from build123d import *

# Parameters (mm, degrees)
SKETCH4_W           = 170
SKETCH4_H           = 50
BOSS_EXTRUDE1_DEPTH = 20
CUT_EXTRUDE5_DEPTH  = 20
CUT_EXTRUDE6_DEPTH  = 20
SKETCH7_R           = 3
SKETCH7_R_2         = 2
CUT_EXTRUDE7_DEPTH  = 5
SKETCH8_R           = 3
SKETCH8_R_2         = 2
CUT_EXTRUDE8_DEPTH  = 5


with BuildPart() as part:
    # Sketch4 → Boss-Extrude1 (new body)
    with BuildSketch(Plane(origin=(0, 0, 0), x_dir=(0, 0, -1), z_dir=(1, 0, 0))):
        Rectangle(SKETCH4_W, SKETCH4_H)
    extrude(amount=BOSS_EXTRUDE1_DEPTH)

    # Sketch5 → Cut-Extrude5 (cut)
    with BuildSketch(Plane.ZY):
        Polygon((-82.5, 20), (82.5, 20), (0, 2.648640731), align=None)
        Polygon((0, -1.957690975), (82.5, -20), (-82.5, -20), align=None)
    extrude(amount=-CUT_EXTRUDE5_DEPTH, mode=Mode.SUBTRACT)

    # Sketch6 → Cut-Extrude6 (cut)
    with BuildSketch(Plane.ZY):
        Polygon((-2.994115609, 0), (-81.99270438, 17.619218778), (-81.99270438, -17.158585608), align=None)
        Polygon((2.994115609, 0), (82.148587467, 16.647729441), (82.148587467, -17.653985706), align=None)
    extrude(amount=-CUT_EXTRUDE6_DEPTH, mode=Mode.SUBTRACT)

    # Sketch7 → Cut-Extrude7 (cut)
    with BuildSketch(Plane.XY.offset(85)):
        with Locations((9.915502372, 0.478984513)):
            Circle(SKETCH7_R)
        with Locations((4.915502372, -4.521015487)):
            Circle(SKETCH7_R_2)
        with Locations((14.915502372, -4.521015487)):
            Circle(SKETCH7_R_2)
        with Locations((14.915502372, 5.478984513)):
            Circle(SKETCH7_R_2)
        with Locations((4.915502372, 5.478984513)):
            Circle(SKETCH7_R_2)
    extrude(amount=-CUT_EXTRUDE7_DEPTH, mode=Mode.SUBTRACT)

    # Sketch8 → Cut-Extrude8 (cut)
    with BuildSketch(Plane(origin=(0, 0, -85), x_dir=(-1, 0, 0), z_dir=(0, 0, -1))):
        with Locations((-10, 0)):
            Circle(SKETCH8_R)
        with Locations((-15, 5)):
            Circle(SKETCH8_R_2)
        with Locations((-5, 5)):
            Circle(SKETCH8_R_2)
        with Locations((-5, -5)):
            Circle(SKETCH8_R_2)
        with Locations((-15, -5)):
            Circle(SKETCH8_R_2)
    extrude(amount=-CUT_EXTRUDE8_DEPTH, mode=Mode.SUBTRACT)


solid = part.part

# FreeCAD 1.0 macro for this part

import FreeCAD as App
import Part
import Sketcher

V = App.Vector
Q = App.Units.Quantity


def add_polygon(sketch, points):
    """Adds a closed chain of lines whose ends are joined by coincident constraints."""
    first, n = sketch.GeometryCount, len(points)
    for a, b in zip(points, points[1:] + points[:1]):
        sketch.addGeometry(Part.LineSegment(App.Vector(*a, 0), App.Vector(*b, 0)), False)
    for i in range(n):
        sketch.addConstraint(Sketcher.Constraint("Coincident", first + i, 2, first + (i + 1) % n, 1))

doc = App.newDocument("Part")
body = doc.addObject("PartDesign::Body", "Body")

sketch1 = body.newObject("Sketcher::SketchObject", "Sketch")
sketch1.AttachmentSupport = (doc.getObject("YZ_Plane"), [""])
sketch1.MapMode = "FlatFace"
add_polygon(sketch1, [(25, 85), (-25, 85), (-25, -85), (25, -85)])
sketch1.addConstraint([
    Sketcher.Constraint("Horizontal", 0),
    Sketcher.Constraint("Vertical", 1),
    Sketcher.Constraint("Horizontal", 2),
    Sketcher.Constraint("Vertical", 3),
    Sketcher.Constraint("Symmetric", 0, 2, 2, 2, -1, 1),
    Sketcher.Constraint("DistanceX", 0, 2, 0, 1, Q("50 mm")),
    Sketcher.Constraint("DistanceY", 1, 2, 1, 1, Q("170 mm")),
])
pad1 = body.newObject("PartDesign::Pad", "Pad")
pad1.Profile = sketch1
pad1.Length = 20

sketch2 = body.newObject("Sketcher::SketchObject", "Sketch001")
sketch2.AttachmentSupport = (doc.getObject("YZ_Plane"), [""])
sketch2.MapMode = "FlatFace"
add_polygon(sketch2, [(20, 82), (20, -82), (3, 0)])
add_polygon(sketch2, [(-20, 82), (-2, 0), (-20, -82)])
sketch2.addConstraint([
    Sketcher.Constraint("Vertical", 0),
    Sketcher.Constraint("Vertical", 5),
    Sketcher.Constraint("Symmetric", 2, 2, 4, 2, -1, 1),
    Sketcher.Constraint("PointOnObject", 1, 2, -1),
    Sketcher.Constraint("PointOnObject", 3, 2, -1),
    Sketcher.Constraint("Horizontal", 0, 2, 4, 2),
    Sketcher.Constraint("Horizontal", 2, 2, 5, 2),
    Sketcher.Constraint("DistanceY", 0, 2, 0, 1, Q("165 mm")),
    Sketcher.Constraint("DistanceX", -1, 1, 0, 2, Q("20 mm")),
    Sketcher.Constraint("Distance", 1, Q("84.304921 mm")),
    Sketcher.Constraint("DistanceX", 3, 2, -1, 1, Q("1.957691 mm")),
])
pocket1 = body.newObject("PartDesign::Pocket", "Pocket")
pocket1.Profile = sketch2
pocket1.Length = 20
pocket1.Reversed = True

sketch3 = body.newObject("Sketcher::SketchObject", "Sketch002")
sketch3.AttachmentSupport = (doc.getObject("YZ_Plane"), [""])
sketch3.MapMode = "FlatFace"
add_polygon(sketch3, [(0, -3), (18, -82), (-17, -82)])
add_polygon(sketch3, [(17, 82), (0, 3), (-18, 82)])
sketch3.addConstraint([
    Sketcher.Constraint("Horizontal", 1),
    Sketcher.Constraint("Horizontal", 5),
    Sketcher.Constraint("Symmetric", 2, 2, 3, 2, -1, 1),
    Sketcher.Constraint("PointOnObject", 2, 2, -2),
    Sketcher.Constraint("Parallel", 0, 4),
    Sketcher.Constraint("Distance", 3, Q("80.8862 mm")),
    Sketcher.Constraint("DistanceX", 4, 2, 1, 2, Q("0.4954 mm")),
    Sketcher.Constraint("Distance", 0, Q("80.939569 mm")),
    Sketcher.Constraint("DistanceX", 1, 2, 1, 1, Q("34.777804 mm")),
    Sketcher.Constraint("DistanceX", 5, 1, 5, 2, Q("34.301715 mm")),
    Sketcher.Constraint("DistanceY", 2, 2, 3, 2, Q("5.988231 mm")),
])
pocket2 = body.newObject("PartDesign::Pocket", "Pocket001")
pocket2.Profile = sketch3
pocket2.Length = 20
pocket2.Reversed = True

sketch4 = body.newObject("Sketcher::SketchObject", "Sketch003")
sketch4.AttachmentSupport = (doc.getObject("XY_Plane"), [""])
sketch4.MapMode = "FlatFace"
sketch4.AttachmentOffset = App.Placement(V(0, 0, 85), App.Rotation())
sketch4.addGeometry([
    Part.Circle(V(9.9, 0.5, 0), V(0, 0, 1), 3),
    Part.Circle(V(4.9, -4.5, 0), V(0, 0, 1), 2),
    Part.Circle(V(14.9, -4.5, 0), V(0, 0, 1), 2),
    Part.Circle(V(14.9, 5.5, 0), V(0, 0, 1), 2),
    Part.Circle(V(4.9, 5.5, 0), V(0, 0, 1), 2),
], False)
sketch4.addConstraint([
    Sketcher.Constraint("Equal", 1, 2),
    Sketcher.Constraint("Equal", 2, 3),
    Sketcher.Constraint("Equal", 3, 4),
    Sketcher.Constraint("Horizontal", 1, 3, 2, 3),
    Sketcher.Constraint("Horizontal", 3, 3, 4, 3),
    Sketcher.Constraint("Vertical", 2, 3, 3, 3),
    Sketcher.Constraint("Vertical", 1, 3, 4, 3),
    Sketcher.Constraint("Diameter", 0, Q("6 mm")),
    Sketcher.Constraint("Diameter", 1, Q("4 mm")),
    Sketcher.Constraint("DistanceX", 1, 3, 0, 3, Q("5 mm")),
    Sketcher.Constraint("DistanceY", 1, 3, 0, 3, Q("5 mm")),
    Sketcher.Constraint("DistanceX", 0, 3, 2, 3, Q("5 mm")),
    Sketcher.Constraint("DistanceY", 0, 3, 3, 3, Q("5 mm")),
    Sketcher.Constraint("DistanceX", -1, 1, 0, 3, Q("9.915502 mm")),
    Sketcher.Constraint("DistanceY", -1, 1, 0, 3, Q("0.478985 mm")),
])
pocket3 = body.newObject("PartDesign::Pocket", "Pocket002")
pocket3.Profile = sketch4
pocket3.Length = 5

sketch5 = body.newObject("Sketcher::SketchObject", "Sketch004")
sketch5.AttachmentSupport = (doc.getObject("XY_Plane"), [""])
sketch5.MapMode = "FlatFace"
sketch5.AttachmentOffset = App.Placement(V(0, 0, -85), App.Rotation())
sketch5.addGeometry([
    Part.Circle(V(10, 0, 0), V(0, 0, 1), 3),
    Part.Circle(V(15, 5, 0), V(0, 0, 1), 2),
    Part.Circle(V(5, 5, 0), V(0, 0, 1), 2),
    Part.Circle(V(5, -5, 0), V(0, 0, 1), 2),
    Part.Circle(V(15, -5, 0), V(0, 0, 1), 2),
], False)
sketch5.addConstraint([
    Sketcher.Constraint("Equal", 1, 2),
    Sketcher.Constraint("Equal", 2, 3),
    Sketcher.Constraint("Equal", 3, 4),
    Sketcher.Constraint("Symmetric", 2, 3, 3, 3, -1),
    Sketcher.Constraint("Symmetric", 1, 3, 4, 3, -1),
    Sketcher.Constraint("PointOnObject", 0, 3, -1),
    Sketcher.Constraint("Horizontal", 1, 3, 2, 3),
    Sketcher.Constraint("Diameter", 0, Q("6 mm")),
    Sketcher.Constraint("Diameter", 1, Q("4 mm")),
    Sketcher.Constraint("DistanceX", -1, 1, 0, 3, Q("10 mm")),
    Sketcher.Constraint("DistanceX", -1, 1, 1, 3, Q("15 mm")),
    Sketcher.Constraint("DistanceY", -1, 1, 1, 3, Q("5 mm")),
    Sketcher.Constraint("DistanceX", -1, 1, 2, 3, Q("5 mm")),
])
pocket4 = body.newObject("PartDesign::Pocket", "Pocket003")
pocket4.Profile = sketch5
pocket4.Length = 5
pocket4.Reversed = True

doc.recompute()
